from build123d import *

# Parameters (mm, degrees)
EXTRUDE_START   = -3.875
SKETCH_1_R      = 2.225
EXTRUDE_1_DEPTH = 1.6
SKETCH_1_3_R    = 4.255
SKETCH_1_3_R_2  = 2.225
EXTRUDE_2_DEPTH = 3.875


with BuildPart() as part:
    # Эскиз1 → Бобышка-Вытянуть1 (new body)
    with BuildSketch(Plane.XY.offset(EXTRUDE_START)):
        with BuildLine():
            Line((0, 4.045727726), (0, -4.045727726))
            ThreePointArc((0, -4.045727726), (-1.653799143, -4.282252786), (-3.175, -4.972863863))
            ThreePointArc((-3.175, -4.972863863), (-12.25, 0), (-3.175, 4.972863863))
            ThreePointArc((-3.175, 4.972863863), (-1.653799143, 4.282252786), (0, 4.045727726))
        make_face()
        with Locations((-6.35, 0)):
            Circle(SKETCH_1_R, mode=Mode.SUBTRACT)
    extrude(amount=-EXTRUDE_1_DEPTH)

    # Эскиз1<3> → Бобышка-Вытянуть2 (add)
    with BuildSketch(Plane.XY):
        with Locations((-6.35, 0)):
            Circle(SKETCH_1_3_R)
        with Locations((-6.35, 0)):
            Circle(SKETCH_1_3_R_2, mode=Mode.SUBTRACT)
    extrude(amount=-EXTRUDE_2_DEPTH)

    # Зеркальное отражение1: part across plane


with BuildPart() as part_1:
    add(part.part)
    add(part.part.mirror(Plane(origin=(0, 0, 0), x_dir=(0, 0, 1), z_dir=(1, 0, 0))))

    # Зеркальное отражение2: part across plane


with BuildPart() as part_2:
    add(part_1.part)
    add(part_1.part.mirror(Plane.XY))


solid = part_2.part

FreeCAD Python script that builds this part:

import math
import FreeCAD as App
import Part
import Sketcher
from FreeCAD import Vector
Q = App.Units.Quantity

doc = App.newDocument("Part")
body = doc.addObject("PartDesign::Body", "Body")

sketch1 = body.newObject("Sketcher::SketchObject", "Sketch")
sketch1.AttachmentSupport = (doc.getObject("XY_Plane"), [""])
sketch1.MapMode = "FlatFace"
sketch1.AttachmentOffset = App.Placement(Vector(0, 0, -3.875), App.Rotation())
sketch1.addGeometry(Part.LineSegment(Vector(0, -4, 0), Vector(0, 4, 0)), False)
sketch1.addGeometry(Part.ArcOfCircle(Part.Circle(Vector(0, 9.9, 0), Vector(0, 0, 1), 5.9), math.radians(-123), math.radians(-90)), False)
sketch1.addGeometry(Part.ArcOfCircle(Part.Circle(Vector(-6.3, 0, 0), Vector(0, 0, 1), 5.9), math.radians(57), math.radians(303)), False)
sketch1.addGeometry(Part.ArcOfCircle(Part.Circle(Vector(0, -9.9, 0), Vector(0, 0, 1), 5.9), math.radians(90), math.radians(123)), False)
sketch1.addGeometry(Part.Circle(Vector(-6.3, 0, 0), Vector(0, 0, 1), 2.2), False)
sketch1.addConstraint(Sketcher.Constraint("Coincident", 0, 2, 1, 2))
sketch1.addConstraint(Sketcher.Constraint("Tangent", 1, 1, 2, 1))
sketch1.addConstraint(Sketcher.Constraint("Tangent", 2, 2, 3, 2))
sketch1.addConstraint(Sketcher.Constraint("Coincident", 3, 1, 0, 1))
sketch1.addConstraint(Sketcher.Constraint("Vertical", 0))
sketch1.addConstraint(Sketcher.Constraint("Coincident", 4, 3, 2, 3))
sketch1.addConstraint(Sketcher.Constraint("Equal", 1, 2))
sketch1.addConstraint(Sketcher.Constraint("Equal", 2, 3))
sketch1.addConstraint(Sketcher.Constraint("Symmetric", 1, 3, 3, 3, -1, 1))
sketch1.addConstraint(Sketcher.Constraint("PointOnObject", 1, 3, -2))
sketch1.addConstraint(Sketcher.Constraint("PointOnObject", 0, 2, -2))
sketch1.addConstraint(Sketcher.Constraint("Radius", 1, Q("5.9 mm")))
sketch1.addConstraint(Sketcher.Constraint("Diameter", 4, Q("4.45 mm")))
sketch1.addConstraint(Sketcher.Constraint("DistanceX", 2, 3, -1, 1, Q("6.35 mm")))
pad1 = body.newObject("PartDesign::Pad", "Pad")
pad1.Profile = sketch1
pad1.Length = 1.6
pad1.Reversed = True

sketch2 = body.newObject("Sketcher::SketchObject", "Sketch001")
sketch2.AttachmentSupport = (doc.getObject("XY_Plane"), [""])
sketch2.MapMode = "FlatFace"
sketch2.addGeometry(Part.Circle(Vector(-6.3, 0, 0), Vector(0, 0, 1), 4.3), False)
sketch2.addGeometry(Part.Circle(Vector(-6.3, 0, 0), Vector(0, 0, 1), 2.2), False)
sketch2.addConstraint(Sketcher.Constraint("Coincident", 1, 3, 0, 3))
sketch2.addConstraint(Sketcher.Constraint("PointOnObject", 0, 3, -1))
sketch2.addConstraint(Sketcher.Constraint("Diameter", 0, Q("8.51 mm")))
sketch2.addConstraint(Sketcher.Constraint("Diameter", 1, Q("4.45 mm")))
sketch2.addConstraint(Sketcher.Constraint("DistanceX", 0, 3, -1, 1, Q("6.35 mm")))
pad2 = body.newObject("PartDesign::Pad", "Pad001")
pad2.Profile = sketch2
pad2.Length = 3.875
pad2.Reversed = True
body2 = doc.addObject("PartDesign::Body", "Body001")
doc.recompute()

body2.BaseFeature = body
doc.recompute()

mirroring = doc.addObject("Part::Mirroring", "Mirroring")
mirroring.Source = body
mirroring.Base = Vector(0, 0, 0)
mirroring.Normal = Vector(1, 0, 0)
body3 = doc.addObject("PartDesign::Body", "Body002")
body3.BaseFeature = mirroring
boolean = body2.newObject("PartDesign::Boolean", "Boolean")
boolean.Type = "Fuse"
boolean.addObjects([body3])
doc.recompute()
body4 = doc.addObject("PartDesign::Body", "Body003")
doc.recompute()

body4.BaseFeature = body2
doc.recompute()

mirroring2 = doc.addObject("Part::Mirroring", "Mirroring001")
mirroring2.Source = body2
mirroring2.Base = Vector(0, 0, 0)
mirroring2.Normal = Vector(0, 0, 1)
body5 = doc.addObject("PartDesign::Body", "Body004")
body5.BaseFeature = mirroring2
boolean2 = body4.newObject("PartDesign::Boolean", "Boolean001")
boolean2.Type = "Fuse"
boolean2.addObjects([body5])
doc.recompute()
mirroring.Visibility = False
mirroring2.Visibility = False

doc.recompute()
